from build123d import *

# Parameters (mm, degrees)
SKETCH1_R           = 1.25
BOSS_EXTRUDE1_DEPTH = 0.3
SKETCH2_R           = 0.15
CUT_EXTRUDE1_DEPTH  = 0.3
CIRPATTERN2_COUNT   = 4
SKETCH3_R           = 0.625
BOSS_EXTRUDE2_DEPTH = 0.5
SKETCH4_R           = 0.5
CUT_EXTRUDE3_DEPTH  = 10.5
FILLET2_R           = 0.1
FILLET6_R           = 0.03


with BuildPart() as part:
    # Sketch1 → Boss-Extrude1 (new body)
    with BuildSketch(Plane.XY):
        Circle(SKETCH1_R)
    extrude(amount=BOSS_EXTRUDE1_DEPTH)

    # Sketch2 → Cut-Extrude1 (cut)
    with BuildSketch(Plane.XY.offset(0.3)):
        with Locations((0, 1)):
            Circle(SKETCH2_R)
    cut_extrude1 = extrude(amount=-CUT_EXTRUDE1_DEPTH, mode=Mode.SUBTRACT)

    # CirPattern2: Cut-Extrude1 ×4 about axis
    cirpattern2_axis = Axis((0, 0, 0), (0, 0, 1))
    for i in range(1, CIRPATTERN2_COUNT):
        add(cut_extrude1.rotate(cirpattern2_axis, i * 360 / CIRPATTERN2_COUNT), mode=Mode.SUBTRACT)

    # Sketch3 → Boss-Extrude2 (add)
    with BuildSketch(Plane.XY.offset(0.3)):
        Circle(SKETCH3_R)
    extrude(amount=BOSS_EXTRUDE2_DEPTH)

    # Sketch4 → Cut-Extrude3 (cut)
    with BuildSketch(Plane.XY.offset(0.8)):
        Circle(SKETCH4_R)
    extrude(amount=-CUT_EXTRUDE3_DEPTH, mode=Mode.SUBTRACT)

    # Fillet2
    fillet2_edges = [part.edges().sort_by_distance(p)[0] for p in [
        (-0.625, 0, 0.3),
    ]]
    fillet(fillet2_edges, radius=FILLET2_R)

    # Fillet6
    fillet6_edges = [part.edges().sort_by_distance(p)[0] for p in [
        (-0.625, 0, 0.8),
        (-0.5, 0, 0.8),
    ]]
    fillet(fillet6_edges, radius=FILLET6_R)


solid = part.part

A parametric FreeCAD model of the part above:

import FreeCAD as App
import Part
import Sketcher


def edges_at(feature, points):
    """Names of the edges that pass closest to the given points."""
    edges = feature.Shape.Edges
    near = lambda p: min(range(len(edges)), key=lambda i: edges[i].distToShape(Part.Vertex(*p))[0])
    return sorted({f"Edge{near(p) + 1}" for p in points})

doc = App.newDocument("Part")
body = doc.addObject("PartDesign::Body", "Body")

# Sketch on XY plane
sketch1 = body.newObject("Sketcher::SketchObject", "Sketch")
sketch1.AttachmentSupport = (doc.getObject("XY_Plane"), [""])
sketch1.MapMode = "FlatFace"
sketch1.addGeometry(Part.Circle(App.Vector(0, 0, 0), App.Vector(0, 0, 1), 1.2), False)
sketch1.addConstraint(Sketcher.Constraint("Coincident", 0, 3, -1, 1))
sketch1.addConstraint(Sketcher.Constraint("Diameter", 0, 2.5))
pad1 = body.newObject("PartDesign::Pad", "Pad")
pad1.Profile = sketch1
pad1.Length = 0.3

# Sketch on XY plane
sketch2 = body.newObject("Sketcher::SketchObject", "Sketch001")
sketch2.AttachmentSupport = (doc.getObject("XY_Plane"), [""])
sketch2.MapMode = "FlatFace"
sketch2.AttachmentOffset = App.Placement(App.Vector(0, 0, 0.3), App.Rotation())
sketch2.addGeometry(Part.Circle(App.Vector(0, 1, 0), App.Vector(0, 0, 1), 0.15), False)
sketch2.addConstraint(Sketcher.Constraint("PointOnObject", 0, 3, -2))
sketch2.addConstraint(Sketcher.Constraint("Diameter", 0, 0.3))
sketch2.addConstraint(Sketcher.Constraint("DistanceY", -1, 1, 0, 3, 1.0))
pocket1 = body.newObject("PartDesign::Pocket", "Pocket")
pocket1.Profile = sketch2
pocket1.Length = 0.3
doc.recompute()

polarpattern = body.newObject("PartDesign::PolarPattern", "PolarPattern")
polarpattern.Originals = [pocket1]
polarpattern.Axis = (doc.getObject("Z_Axis"), [""])
polarpattern.Angle = 360
polarpattern.Occurrences = 4
body.Tip = polarpattern

# Sketch on XY plane
sketch3 = body.newObject("Sketcher::SketchObject", "Sketch002")
sketch3.AttachmentSupport = (doc.getObject("XY_Plane"), [""])
sketch3.MapMode = "FlatFace"
sketch3.AttachmentOffset = App.Placement(App.Vector(0, 0, 0.3), App.Rotation())
sketch3.addGeometry(Part.Circle(App.Vector(0, 0, 0), App.Vector(0, 0, 1), 0.6), False)
sketch3.addConstraint(Sketcher.Constraint("Coincident", 0, 3, -1, 1))
sketch3.addConstraint(Sketcher.Constraint("Diameter", 0, 1.25))
pad2 = body.newObject("PartDesign::Pad", "Pad001")
pad2.Profile = sketch3
pad2.Length = 0.5

# Sketch on XY plane
sketch4 = body.newObject("Sketcher::SketchObject", "Sketch003")
sketch4.AttachmentSupport = (doc.getObject("XY_Plane"), [""])
sketch4.MapMode = "FlatFace"
sketch4.AttachmentOffset = App.Placement(App.Vector(0, 0, 0.8), App.Rotation())
sketch4.addGeometry(Part.Circle(App.Vector(0, 0, 0), App.Vector(0, 0, 1), 0.5), False)
sketch4.addConstraint(Sketcher.Constraint("Coincident", 0, 3, -1, 1))
sketch4.addConstraint(Sketcher.Constraint("Diameter", 0, 1.0))
pocket2 = body.newObject("PartDesign::Pocket", "Pocket001")
pocket2.Profile = sketch4
pocket2.Length = 10.5
doc.recompute()

fillet = body.newObject("PartDesign::Fillet", "Fillet")
fillet.Base = (pocket2, edges_at(pocket2, [(-0.625, 0, 0.3)]))
fillet.Radius = 0.1
doc.recompute()

fillet2 = body.newObject("PartDesign::Fillet", "Fillet001")
fillet2.Base = (fillet, edges_at(fillet, [(-0.625, 0, 0.8), (-0.5, 0, 0.8)]))
fillet2.Radius = 0.03

doc.recompute()
